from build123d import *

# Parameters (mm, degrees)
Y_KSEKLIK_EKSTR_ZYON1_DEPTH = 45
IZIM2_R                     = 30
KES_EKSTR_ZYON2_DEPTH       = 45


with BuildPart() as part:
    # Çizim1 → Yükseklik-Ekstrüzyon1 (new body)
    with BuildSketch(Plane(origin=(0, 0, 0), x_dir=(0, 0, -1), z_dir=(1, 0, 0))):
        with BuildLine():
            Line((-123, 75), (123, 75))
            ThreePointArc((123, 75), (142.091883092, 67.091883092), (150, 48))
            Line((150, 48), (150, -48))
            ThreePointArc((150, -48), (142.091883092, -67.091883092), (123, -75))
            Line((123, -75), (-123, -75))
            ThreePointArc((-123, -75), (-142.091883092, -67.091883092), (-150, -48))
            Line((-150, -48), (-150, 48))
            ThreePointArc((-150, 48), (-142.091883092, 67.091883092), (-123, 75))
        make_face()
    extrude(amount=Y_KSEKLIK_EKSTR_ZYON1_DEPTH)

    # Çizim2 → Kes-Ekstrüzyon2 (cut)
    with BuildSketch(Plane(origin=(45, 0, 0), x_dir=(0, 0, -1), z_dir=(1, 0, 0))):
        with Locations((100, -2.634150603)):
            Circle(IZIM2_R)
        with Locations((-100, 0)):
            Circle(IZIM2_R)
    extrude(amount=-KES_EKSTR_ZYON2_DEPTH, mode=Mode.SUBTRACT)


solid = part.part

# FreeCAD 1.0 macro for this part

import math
import FreeCAD as App
import Part
import Sketcher
Q = App.Units.Quantity

doc = App.newDocument("Part")
body = doc.addObject("PartDesign::Body", "Body")

sketch1 = body.newObject("Sketcher::SketchObject", "Sketch")
sketch1.AttachmentSupport = (doc.getObject("YZ_Plane"), [""])
sketch1.MapMode = "FlatFace"
sketch1.addGeometry([
    Part.LineSegment(App.Vector(75, -123, 0), App.Vector(75, 123, 0)),
    Part.ArcOfCircle(Part.Circle(App.Vector(48, 123, 0), App.Vector(0, 0, 1), 27), math.radians(0), math.radians(90)),
    Part.LineSegment(App.Vector(48, 150, 0), App.Vector(-48, 150, 0)),
    Part.ArcOfCircle(Part.Circle(App.Vector(-48, 123, 0), App.Vector(0, 0, 1), 27), math.radians(90), math.radians(180)),
    Part.LineSegment(App.Vector(-75, 123, 0), App.Vector(-75, -123, 0)),
    Part.ArcOfCircle(Part.Circle(App.Vector(-48, -123, 0), App.Vector(0, 0, 1), 27), math.radians(180), math.radians(270)),
    Part.LineSegment(App.Vector(-48, -150, 0), App.Vector(48, -150, 0)),
    Part.ArcOfCircle(Part.Circle(App.Vector(48, -123, 0), App.Vector(0, 0, 1), 27), math.radians(-90), math.radians(0)),
], False)
sketch1.addConstraint([
    Sketcher.Constraint("Tangent", 0, 2, 1, 1),
    Sketcher.Constraint("Tangent", 1, 2, 2, 1),
    Sketcher.Constraint("Tangent", 2, 2, 3, 1),
    Sketcher.Constraint("Tangent", 3, 2, 4, 1),
    Sketcher.Constraint("Tangent", 4, 2, 5, 1),
    Sketcher.Constraint("Tangent", 5, 2, 6, 1),
    Sketcher.Constraint("Tangent", 6, 2, 7, 1),
    Sketcher.Constraint("Tangent", 7, 2, 0, 1),
    Sketcher.Constraint("Vertical", 0),
    Sketcher.Constraint("Horizontal", 2),
    Sketcher.Constraint("Vertical", 4),
    Sketcher.Constraint("Horizontal", 6),
    Sketcher.Constraint("Equal", 1, 3),
    Sketcher.Constraint("Equal", 3, 5),
    Sketcher.Constraint("Equal", 5, 7),
    Sketcher.Constraint("Symmetric", 1, 3, 5, 3, -1, 1),
    Sketcher.Constraint("Radius", 1, Q("27 mm")),
    Sketcher.Constraint("DistanceX", 2, 2, 2, 1, Q("96 mm")),
    Sketcher.Constraint("DistanceY", 0, 1, 0, 2, Q("246 mm")),
])
pad1 = body.newObject("PartDesign::Pad", "Pad")
pad1.Profile = sketch1
pad1.Length = 45

sketch2 = body.newObject("Sketcher::SketchObject", "Sketch001")
sketch2.AttachmentSupport = (doc.getObject("YZ_Plane"), [""])
sketch2.MapMode = "FlatFace"
sketch2.AttachmentOffset = App.Placement(App.Vector(0, 0, 45), App.Rotation())
sketch2.addGeometry([
    Part.Circle(App.Vector(-3, -100, 0), App.Vector(0, 0, 1), 30),
    Part.Circle(App.Vector(0, 100, 0), App.Vector(0, 0, 1), 30),
], False)
sketch2.addConstraint([
    Sketcher.Constraint("Equal", 0, 1),
    Sketcher.Constraint("PointOnObject", 1, 3, -2),
    Sketcher.Constraint("Diameter", 0, Q("60 mm")),
    Sketcher.Constraint("DistanceY", 0, 3, -1, 1, Q("100 mm")),
    Sketcher.Constraint("DistanceY", -1, 1, 1, 3, Q("100 mm")),
    Sketcher.Constraint("DistanceX", 0, 3, -1, 1, Q("2.634151 mm")),
])
pocket1 = body.newObject("PartDesign::Pocket", "Pocket")
pocket1.Profile = sketch2
pocket1.Length = 45

doc.recompute()
